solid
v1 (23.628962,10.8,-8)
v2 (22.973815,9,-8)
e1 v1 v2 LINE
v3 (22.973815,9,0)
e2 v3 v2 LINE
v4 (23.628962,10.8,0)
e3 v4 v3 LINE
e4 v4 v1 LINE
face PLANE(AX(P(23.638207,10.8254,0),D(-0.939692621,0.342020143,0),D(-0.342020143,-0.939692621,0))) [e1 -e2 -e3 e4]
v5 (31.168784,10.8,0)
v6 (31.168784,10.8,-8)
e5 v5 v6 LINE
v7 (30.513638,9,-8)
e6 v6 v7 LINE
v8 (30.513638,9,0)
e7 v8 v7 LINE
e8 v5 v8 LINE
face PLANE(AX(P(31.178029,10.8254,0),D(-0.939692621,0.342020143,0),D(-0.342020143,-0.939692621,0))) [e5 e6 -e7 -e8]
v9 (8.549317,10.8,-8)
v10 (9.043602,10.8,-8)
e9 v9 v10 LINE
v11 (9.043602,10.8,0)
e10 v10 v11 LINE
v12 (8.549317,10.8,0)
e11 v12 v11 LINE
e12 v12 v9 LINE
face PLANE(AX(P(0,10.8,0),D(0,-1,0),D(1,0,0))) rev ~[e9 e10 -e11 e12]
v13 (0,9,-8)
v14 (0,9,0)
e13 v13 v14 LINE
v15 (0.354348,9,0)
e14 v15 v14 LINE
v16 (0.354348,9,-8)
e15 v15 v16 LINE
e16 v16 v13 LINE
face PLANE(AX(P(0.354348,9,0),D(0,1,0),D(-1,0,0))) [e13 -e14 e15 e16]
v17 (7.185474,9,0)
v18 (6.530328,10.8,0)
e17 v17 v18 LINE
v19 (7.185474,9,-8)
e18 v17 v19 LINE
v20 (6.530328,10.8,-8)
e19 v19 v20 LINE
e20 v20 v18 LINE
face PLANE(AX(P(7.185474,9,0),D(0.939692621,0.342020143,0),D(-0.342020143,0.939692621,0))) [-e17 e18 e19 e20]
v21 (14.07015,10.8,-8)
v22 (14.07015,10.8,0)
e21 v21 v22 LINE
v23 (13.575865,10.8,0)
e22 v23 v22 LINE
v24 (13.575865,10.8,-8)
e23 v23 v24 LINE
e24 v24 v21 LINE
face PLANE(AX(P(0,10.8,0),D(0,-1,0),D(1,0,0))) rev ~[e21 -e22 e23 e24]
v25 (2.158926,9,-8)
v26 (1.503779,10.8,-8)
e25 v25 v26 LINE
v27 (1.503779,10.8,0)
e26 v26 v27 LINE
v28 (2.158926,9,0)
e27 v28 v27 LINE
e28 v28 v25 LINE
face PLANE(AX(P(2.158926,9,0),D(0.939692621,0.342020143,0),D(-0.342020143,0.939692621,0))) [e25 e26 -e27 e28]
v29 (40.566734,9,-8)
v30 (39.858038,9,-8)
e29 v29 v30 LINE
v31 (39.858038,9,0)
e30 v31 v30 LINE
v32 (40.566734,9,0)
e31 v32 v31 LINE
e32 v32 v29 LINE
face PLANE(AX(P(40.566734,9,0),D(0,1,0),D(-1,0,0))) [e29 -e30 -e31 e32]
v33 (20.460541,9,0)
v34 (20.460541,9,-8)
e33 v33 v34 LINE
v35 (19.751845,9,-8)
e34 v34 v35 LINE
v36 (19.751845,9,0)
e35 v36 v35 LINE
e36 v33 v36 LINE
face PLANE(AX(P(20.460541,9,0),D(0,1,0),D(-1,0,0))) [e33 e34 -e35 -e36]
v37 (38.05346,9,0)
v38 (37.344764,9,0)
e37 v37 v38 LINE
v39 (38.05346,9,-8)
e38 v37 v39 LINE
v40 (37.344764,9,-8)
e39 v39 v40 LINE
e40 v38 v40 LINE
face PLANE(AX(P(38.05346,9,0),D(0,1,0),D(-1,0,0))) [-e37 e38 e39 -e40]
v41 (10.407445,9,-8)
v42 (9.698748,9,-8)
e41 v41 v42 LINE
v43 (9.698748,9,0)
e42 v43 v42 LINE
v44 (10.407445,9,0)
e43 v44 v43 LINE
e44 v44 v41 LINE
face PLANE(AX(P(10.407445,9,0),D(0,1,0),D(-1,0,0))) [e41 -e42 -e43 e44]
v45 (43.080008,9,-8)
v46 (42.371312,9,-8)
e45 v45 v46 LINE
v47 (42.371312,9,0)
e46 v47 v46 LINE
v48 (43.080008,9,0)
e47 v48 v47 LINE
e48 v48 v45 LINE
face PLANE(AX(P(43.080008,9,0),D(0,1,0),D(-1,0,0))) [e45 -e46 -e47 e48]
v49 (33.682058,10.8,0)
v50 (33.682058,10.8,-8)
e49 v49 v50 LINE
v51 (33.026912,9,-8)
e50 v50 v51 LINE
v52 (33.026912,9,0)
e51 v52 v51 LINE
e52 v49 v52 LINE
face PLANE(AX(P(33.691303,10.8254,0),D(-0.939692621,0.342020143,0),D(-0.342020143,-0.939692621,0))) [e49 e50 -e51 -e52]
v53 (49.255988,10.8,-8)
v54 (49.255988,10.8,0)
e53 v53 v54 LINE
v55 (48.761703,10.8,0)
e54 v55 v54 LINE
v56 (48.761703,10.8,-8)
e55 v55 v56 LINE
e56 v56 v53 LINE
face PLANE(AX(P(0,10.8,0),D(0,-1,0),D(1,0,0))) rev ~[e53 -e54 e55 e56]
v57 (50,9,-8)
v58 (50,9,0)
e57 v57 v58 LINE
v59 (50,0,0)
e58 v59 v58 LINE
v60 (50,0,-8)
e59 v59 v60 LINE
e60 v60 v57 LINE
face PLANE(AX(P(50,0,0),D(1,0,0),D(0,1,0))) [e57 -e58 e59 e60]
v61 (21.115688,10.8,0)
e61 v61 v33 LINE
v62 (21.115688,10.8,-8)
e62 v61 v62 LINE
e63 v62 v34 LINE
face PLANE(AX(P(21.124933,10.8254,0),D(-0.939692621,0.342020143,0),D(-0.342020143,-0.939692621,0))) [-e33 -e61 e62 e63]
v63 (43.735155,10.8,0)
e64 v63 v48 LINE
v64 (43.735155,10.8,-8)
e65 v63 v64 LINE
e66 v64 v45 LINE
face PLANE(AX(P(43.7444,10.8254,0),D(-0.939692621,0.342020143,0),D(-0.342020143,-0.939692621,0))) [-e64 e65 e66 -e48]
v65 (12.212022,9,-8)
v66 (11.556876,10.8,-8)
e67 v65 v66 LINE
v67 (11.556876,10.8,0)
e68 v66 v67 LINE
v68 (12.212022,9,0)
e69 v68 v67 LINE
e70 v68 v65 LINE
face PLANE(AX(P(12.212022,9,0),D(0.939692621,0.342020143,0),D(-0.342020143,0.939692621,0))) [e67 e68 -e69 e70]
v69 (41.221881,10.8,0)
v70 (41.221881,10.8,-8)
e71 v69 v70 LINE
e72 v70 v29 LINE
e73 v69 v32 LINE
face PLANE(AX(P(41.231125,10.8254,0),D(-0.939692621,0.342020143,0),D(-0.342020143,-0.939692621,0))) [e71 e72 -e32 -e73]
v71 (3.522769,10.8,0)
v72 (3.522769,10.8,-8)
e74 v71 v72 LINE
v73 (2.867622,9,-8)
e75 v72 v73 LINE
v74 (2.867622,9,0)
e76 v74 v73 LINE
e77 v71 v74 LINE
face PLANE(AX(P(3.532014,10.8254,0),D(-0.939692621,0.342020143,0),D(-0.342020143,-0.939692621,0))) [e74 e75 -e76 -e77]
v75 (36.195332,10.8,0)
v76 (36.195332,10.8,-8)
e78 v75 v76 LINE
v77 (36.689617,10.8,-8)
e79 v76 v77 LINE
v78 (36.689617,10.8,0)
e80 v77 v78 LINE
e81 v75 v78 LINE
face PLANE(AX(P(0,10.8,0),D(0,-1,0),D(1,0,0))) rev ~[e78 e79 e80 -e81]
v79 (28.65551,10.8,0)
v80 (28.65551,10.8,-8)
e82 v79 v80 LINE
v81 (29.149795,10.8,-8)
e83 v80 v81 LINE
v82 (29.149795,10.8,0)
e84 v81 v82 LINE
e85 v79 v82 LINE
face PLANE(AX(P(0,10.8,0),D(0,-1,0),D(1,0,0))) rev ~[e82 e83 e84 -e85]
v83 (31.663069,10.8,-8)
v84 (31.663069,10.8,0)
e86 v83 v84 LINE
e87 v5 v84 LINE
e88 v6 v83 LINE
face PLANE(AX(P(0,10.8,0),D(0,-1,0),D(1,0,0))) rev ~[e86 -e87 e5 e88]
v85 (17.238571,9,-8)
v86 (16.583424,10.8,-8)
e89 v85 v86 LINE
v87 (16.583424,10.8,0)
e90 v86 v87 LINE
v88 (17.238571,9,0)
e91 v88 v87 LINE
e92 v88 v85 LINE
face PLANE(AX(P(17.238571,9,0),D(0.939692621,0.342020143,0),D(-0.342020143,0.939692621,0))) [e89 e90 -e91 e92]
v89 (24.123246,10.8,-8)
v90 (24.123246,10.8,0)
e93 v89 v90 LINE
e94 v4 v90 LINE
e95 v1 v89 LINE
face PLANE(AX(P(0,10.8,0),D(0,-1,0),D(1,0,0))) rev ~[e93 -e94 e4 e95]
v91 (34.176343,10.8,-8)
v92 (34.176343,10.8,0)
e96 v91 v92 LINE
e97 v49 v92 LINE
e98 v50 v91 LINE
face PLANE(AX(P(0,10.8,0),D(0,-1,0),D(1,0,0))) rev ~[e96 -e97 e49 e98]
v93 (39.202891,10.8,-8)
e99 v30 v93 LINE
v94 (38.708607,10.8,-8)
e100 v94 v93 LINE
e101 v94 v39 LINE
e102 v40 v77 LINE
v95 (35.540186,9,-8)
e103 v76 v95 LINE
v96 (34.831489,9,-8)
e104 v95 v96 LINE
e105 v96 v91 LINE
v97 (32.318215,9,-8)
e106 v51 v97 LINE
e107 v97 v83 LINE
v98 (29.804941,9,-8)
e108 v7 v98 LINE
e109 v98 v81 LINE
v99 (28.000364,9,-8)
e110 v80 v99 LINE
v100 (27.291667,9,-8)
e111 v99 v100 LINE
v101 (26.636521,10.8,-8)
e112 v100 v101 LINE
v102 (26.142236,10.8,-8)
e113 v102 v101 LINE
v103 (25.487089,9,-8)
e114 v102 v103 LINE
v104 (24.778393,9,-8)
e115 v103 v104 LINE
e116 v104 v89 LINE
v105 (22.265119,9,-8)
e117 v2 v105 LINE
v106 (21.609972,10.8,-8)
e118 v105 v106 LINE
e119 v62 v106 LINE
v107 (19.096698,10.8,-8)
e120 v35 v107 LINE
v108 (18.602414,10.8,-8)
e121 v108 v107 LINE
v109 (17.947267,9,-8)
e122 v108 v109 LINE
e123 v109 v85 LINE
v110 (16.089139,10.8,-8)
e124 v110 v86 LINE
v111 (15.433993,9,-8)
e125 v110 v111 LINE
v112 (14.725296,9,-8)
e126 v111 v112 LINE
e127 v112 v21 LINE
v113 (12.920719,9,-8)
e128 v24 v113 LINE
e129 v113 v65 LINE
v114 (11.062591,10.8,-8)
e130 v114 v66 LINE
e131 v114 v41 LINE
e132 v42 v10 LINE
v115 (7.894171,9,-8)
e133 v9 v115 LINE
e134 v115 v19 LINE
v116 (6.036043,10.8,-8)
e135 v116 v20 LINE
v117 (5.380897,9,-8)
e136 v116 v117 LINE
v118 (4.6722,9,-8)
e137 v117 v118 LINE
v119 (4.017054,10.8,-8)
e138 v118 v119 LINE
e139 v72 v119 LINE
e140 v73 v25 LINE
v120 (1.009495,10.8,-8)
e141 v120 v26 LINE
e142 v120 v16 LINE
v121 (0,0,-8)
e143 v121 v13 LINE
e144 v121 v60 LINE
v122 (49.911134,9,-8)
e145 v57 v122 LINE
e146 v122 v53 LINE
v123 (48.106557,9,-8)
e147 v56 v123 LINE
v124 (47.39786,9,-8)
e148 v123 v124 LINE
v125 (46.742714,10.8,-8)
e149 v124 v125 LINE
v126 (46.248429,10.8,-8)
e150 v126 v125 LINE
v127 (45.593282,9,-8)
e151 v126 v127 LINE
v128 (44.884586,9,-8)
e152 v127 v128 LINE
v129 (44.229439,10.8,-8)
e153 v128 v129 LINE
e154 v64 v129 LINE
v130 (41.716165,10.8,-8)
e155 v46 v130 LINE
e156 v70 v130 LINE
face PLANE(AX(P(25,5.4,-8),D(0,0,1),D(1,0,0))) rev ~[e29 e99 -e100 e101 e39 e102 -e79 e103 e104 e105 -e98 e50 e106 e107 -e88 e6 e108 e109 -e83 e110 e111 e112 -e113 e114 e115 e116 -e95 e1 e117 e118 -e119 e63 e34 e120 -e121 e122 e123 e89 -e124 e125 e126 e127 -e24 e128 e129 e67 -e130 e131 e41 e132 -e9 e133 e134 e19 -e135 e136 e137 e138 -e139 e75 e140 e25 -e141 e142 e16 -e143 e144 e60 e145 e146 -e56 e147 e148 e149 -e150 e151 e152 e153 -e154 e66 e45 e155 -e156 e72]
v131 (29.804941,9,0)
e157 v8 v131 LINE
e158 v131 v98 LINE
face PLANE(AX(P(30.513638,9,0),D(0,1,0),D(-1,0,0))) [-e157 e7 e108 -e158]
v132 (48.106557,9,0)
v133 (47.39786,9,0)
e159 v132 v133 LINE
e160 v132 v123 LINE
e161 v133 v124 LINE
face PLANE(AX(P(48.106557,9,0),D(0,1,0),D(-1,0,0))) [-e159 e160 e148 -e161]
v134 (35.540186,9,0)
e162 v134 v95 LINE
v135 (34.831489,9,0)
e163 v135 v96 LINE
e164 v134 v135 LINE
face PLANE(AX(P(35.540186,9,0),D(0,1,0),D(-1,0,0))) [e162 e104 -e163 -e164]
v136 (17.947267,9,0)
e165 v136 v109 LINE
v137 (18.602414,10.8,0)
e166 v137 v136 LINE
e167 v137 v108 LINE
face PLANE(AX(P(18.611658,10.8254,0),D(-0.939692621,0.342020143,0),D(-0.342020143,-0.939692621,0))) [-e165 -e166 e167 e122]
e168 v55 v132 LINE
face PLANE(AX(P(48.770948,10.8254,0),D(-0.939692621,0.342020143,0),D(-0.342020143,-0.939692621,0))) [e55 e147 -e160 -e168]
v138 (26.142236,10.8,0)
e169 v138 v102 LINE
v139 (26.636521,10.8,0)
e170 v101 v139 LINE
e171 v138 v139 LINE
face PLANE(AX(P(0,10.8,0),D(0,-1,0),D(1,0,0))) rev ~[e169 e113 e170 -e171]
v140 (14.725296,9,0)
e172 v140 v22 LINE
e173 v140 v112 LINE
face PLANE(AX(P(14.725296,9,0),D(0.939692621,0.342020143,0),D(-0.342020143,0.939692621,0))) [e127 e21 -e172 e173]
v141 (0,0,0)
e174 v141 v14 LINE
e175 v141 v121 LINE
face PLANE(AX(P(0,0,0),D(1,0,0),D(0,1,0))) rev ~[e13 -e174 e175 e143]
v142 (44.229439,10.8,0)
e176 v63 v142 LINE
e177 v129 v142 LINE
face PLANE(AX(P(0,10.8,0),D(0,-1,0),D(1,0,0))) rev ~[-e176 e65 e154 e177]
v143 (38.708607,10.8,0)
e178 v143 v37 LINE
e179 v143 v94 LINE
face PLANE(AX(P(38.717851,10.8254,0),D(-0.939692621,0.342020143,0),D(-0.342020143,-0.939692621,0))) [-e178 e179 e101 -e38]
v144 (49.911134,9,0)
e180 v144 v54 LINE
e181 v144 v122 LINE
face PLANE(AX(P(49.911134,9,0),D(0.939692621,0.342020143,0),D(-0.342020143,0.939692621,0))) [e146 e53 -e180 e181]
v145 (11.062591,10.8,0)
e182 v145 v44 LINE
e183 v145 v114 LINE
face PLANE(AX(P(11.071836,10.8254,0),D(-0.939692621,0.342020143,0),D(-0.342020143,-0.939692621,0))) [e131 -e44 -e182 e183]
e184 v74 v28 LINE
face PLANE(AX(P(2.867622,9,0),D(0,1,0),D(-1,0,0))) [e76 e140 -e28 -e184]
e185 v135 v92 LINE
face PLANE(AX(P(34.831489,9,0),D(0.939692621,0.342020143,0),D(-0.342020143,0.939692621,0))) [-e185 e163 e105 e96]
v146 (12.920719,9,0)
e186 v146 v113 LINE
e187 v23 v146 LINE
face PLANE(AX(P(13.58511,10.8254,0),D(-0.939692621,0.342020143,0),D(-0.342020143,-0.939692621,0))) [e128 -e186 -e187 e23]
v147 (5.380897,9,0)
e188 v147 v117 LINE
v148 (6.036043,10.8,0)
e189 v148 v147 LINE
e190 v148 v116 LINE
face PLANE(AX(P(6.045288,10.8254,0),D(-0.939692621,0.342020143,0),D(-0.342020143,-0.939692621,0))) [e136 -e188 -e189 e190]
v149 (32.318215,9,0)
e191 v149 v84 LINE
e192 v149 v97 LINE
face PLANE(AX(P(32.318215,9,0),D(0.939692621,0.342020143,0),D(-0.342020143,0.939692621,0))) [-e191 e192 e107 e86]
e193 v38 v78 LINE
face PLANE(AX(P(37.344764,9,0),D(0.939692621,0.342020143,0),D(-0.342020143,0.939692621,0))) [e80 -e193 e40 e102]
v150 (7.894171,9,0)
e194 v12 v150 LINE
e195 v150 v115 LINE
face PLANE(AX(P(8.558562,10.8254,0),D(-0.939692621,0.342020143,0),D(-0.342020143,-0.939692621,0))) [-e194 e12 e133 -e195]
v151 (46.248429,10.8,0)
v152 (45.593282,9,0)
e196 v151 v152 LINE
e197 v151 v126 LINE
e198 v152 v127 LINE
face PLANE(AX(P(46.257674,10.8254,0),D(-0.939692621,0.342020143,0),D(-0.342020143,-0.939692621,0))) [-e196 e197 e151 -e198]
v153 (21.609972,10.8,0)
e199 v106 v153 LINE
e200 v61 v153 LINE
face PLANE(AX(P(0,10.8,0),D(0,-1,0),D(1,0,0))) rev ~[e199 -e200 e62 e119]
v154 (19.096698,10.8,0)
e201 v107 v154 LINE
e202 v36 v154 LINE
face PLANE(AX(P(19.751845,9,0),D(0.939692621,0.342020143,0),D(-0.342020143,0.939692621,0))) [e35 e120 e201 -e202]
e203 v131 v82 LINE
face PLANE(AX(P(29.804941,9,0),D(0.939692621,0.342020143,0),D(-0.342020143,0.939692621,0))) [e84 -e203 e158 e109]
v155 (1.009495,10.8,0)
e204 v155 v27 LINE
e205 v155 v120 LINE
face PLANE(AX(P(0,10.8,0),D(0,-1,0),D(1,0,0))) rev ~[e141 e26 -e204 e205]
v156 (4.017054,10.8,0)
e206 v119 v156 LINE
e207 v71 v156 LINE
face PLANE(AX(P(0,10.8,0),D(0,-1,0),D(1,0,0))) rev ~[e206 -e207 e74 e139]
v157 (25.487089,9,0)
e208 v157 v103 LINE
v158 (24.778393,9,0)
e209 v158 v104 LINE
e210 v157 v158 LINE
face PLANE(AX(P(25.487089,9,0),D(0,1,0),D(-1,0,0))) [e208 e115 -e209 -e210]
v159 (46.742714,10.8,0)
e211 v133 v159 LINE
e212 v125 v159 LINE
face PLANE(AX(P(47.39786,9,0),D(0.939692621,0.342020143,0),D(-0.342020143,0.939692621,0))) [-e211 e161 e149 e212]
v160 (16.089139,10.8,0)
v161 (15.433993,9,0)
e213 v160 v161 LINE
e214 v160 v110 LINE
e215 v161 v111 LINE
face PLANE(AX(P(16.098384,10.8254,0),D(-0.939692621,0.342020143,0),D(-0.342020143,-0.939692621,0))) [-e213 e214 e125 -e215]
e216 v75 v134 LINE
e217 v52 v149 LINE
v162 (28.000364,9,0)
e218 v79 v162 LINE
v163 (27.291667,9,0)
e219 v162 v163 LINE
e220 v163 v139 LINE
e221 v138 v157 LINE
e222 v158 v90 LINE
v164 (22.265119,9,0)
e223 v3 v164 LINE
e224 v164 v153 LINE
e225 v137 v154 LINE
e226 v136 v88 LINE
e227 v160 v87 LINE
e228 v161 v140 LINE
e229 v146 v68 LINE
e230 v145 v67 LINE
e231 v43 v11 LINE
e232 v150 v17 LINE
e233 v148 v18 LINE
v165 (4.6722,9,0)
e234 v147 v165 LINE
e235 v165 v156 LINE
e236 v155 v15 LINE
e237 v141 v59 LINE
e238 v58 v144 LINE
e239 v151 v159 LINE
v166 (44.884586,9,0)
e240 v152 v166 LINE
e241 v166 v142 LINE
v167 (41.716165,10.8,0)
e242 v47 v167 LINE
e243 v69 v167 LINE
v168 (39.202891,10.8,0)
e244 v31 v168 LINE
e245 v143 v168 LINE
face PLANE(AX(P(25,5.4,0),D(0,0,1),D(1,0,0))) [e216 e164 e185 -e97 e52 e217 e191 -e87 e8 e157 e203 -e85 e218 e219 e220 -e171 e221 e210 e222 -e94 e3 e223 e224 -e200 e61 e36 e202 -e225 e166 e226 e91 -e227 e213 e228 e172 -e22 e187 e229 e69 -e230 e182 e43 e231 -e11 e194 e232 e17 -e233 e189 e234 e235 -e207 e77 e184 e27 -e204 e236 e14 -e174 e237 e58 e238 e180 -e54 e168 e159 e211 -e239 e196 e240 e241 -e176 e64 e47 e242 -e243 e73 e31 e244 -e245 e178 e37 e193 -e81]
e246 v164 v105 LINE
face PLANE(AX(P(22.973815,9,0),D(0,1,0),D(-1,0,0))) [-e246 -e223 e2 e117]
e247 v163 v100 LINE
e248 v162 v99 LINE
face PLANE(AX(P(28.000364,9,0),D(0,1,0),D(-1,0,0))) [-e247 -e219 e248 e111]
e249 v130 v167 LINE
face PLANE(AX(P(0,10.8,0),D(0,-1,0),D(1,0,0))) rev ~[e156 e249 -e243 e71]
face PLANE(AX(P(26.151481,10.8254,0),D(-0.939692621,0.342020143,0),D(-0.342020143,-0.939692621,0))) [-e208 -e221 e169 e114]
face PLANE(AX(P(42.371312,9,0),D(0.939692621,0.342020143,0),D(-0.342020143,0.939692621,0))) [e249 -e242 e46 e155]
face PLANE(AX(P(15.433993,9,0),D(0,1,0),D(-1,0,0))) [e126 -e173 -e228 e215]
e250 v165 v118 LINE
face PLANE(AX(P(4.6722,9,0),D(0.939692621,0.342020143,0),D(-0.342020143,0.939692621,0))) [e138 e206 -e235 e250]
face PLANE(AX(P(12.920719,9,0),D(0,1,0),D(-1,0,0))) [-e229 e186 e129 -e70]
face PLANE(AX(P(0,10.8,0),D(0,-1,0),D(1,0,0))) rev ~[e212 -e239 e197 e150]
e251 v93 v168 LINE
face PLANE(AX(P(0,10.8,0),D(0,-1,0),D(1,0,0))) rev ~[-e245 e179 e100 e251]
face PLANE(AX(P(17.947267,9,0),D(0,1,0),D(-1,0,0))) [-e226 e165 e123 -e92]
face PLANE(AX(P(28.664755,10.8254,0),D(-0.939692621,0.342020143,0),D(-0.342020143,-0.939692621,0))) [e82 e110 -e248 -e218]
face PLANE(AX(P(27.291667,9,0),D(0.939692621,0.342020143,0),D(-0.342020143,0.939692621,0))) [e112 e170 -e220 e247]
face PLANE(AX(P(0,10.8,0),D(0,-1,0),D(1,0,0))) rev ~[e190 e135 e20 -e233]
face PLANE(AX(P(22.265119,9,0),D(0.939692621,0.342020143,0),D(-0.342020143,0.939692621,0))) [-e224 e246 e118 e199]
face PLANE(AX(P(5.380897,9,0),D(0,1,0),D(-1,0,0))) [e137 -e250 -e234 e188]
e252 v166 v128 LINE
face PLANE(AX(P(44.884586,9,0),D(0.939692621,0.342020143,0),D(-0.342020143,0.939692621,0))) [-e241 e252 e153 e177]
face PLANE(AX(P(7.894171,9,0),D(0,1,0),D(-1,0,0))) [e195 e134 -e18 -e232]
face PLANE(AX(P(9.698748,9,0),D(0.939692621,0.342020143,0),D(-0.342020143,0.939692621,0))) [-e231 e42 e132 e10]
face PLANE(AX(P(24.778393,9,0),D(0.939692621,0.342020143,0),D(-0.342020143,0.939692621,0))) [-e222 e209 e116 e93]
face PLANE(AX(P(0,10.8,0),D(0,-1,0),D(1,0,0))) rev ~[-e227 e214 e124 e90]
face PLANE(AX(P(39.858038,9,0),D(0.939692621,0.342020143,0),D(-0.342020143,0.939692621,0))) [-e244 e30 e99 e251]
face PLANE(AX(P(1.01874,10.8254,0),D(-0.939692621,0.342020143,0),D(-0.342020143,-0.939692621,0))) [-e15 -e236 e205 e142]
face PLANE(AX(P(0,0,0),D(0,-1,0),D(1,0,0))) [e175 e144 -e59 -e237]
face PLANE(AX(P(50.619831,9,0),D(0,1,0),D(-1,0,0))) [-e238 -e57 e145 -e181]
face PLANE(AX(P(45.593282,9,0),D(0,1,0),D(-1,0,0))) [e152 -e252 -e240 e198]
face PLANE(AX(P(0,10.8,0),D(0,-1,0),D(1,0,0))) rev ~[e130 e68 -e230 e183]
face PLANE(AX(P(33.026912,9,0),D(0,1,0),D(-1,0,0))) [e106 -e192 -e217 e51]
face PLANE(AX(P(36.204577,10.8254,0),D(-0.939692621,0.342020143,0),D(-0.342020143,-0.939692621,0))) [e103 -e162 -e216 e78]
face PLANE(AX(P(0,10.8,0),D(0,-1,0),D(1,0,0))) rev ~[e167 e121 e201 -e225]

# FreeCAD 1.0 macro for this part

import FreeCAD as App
import Part
import Sketcher

V = App.Vector
Q = App.Units.Quantity

doc = App.newDocument("Part")
params = doc.addObject("Spreadsheet::Sheet", "Params")
for row, (alias, value) in enumerate([
    ("sketch1_width", "50 mm"),
    ("sketch1_height", "10.8 mm"),
    ("pad1_length", "8 mm"),
    ("linearpattern_pitch", "2.513274 mm"),
], start=1):
    params.set(f"A{row}", alias)
    params.set(f"B{row}", "=" + value)
    params.setAlias(f"B{row}", alias)

body = doc.addObject("PartDesign::Body", "Body")

sketch1 = doc.addObject("Sketcher::SketchObject", "Sketch")
body.addObject(sketch1)
sketch1.AttachmentSupport = (doc.XY_Plane, [""])
sketch1.MapMode = "FlatFace"
sketch1.addGeometry(Part.LineSegment(V(0, 11, 0), V(0, 0, 0)), False)
sketch1.addGeometry(Part.LineSegment(V(0, 0, 0), V(50, 0, 0)), False)
sketch1.addGeometry(Part.LineSegment(V(50, 0, 0), V(50, 11, 0)), False)
sketch1.addGeometry(Part.LineSegment(V(50, 11, 0), V(0, 11, 0)), False)
sketch1.addConstraint(Sketcher.Constraint("Coincident", 0, 2, 1, 1))
sketch1.addConstraint(Sketcher.Constraint("Coincident", 1, 2, 2, 1))
sketch1.addConstraint(Sketcher.Constraint("Coincident", 2, 2, 3, 1))
sketch1.addConstraint(Sketcher.Constraint("Coincident", 3, 2, 0, 1))
sketch1.addConstraint(Sketcher.Constraint("Vertical", 0))
sketch1.addConstraint(Sketcher.Constraint("Horizontal", 1))
sketch1.addConstraint(Sketcher.Constraint("Vertical", 2))
sketch1.addConstraint(Sketcher.Constraint("Horizontal", 3))
sketch1.addConstraint(Sketcher.Constraint("Coincident", 0, 2, -1, 1))
sketch1.addConstraint(Sketcher.Constraint("DistanceX", 1, 1, 1, 2, Q("50 mm")))
sketch1.addConstraint(Sketcher.Constraint("DistanceY", 0, 2, 0, 1, Q("10.8 mm")))
sketch1.setExpression("Constraints[9]", "Params.sketch1_width")
sketch1.setExpression("Constraints[10]", "Params.sketch1_height")
pad1 = doc.addObject("PartDesign::Pad", "Pad")
body.addObject(pad1)
pad1.Profile = sketch1
pad1.setExpression("Length", "Params.pad1_length")
pad1.Reversed = True

sketch2 = doc.addObject("Sketcher::SketchObject", "Sketch001")
body.addObject(sketch2)
sketch2.AttachmentSupport = (doc.XY_Plane, [""])
sketch2.MapMode = "FlatFace"
sketch2.addGeometry(Part.LineSegment(V(-0.4, 9, 0), V(0.4, 9, 0)), False)
sketch2.addGeometry(Part.LineSegment(V(0.4, 9, 0), V(1, 10.8, 0)), False)
sketch2.addGeometry(Part.LineSegment(V(1, 10.8, 0), V(-1, 10.8, 0)), False)
sketch2.addGeometry(Part.LineSegment(V(-1, 10.8, 0), V(-0.4, 9, 0)), False)
sketch2.addConstraint(Sketcher.Constraint("Coincident", 0, 2, 1, 1))
sketch2.addConstraint(Sketcher.Constraint("Coincident", 1, 2, 2, 1))
sketch2.addConstraint(Sketcher.Constraint("Coincident", 2, 2, 3, 1))
sketch2.addConstraint(Sketcher.Constraint("Coincident", 3, 2, 0, 1))
sketch2.addConstraint(Sketcher.Constraint("Horizontal", 0))
sketch2.addConstraint(Sketcher.Constraint("Horizontal", 2))
sketch2.addConstraint(Sketcher.Constraint("Equal", 1, 3))
sketch2.addConstraint(Sketcher.Constraint("Angle", 1, Q("70 deg")))
sketch2.addConstraint(Sketcher.Constraint("DistanceY", -1, 1, 0, 2, Q("9 mm")))
sketch2.addConstraint(Sketcher.Constraint("DistanceX", 2, 2, 2, 1, Q("2.037479 mm")))
sketch2.addConstraint(Sketcher.Constraint("DistanceY", -1, 1, 1, 2, Q("10.8254 mm")))
sketch2.addConstraint(Sketcher.Constraint("DistanceX", -1, 1, 0, 2, Q("0.354348 mm")))
pocket1 = doc.addObject("PartDesign::Pocket", "Pocket")
body.addObject(pocket1)
pocket1.Profile = sketch2
pocket1.Type = "ThroughAll"
doc.recompute()

linearpattern = doc.addObject("PartDesign::LinearPattern", "LinearPattern")
body.addObject(linearpattern)
linearpattern.Originals = [pocket1]
linearpattern.Direction = (doc.X_Axis, [""])
linearpattern.Mode = "offset"
linearpattern.setExpression("Offset", "Params.linearpattern_pitch")
linearpattern.Occurrences = 21
body.Tip = linearpattern

doc.recompute()
